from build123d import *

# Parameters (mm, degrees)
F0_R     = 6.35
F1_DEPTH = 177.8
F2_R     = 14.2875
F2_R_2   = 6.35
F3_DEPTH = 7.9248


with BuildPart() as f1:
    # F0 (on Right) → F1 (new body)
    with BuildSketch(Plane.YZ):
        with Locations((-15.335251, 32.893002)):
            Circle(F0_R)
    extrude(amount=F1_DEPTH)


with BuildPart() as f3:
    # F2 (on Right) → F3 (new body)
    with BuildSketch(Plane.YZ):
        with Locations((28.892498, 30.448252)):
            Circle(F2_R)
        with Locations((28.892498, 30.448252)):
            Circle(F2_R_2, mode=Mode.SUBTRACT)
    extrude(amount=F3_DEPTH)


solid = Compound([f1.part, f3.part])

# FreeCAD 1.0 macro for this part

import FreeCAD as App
import Part
import Sketcher
Q = App.Units.Quantity

doc = App.newDocument("Part")
params = doc.addObject("Spreadsheet::Sheet", "Params")
for row, (alias, value) in enumerate([
    ("sketch1_diameter", "0.5 in"),
    ("pad1_length", "7 in"),
    ("sketch2_diameter", "0.5 in"),
    ("sketch2_diameter2", "1.125 in"),
    ("pad2_length", "0.312 in"),
], start=1):
    params.set(f"A{row}", alias)
    params.set(f"B{row}", "=" + value)
    params.setAlias(f"B{row}", alias)

body = doc.addObject("PartDesign::Body", "Body")

sketch1 = body.newObject("Sketcher::SketchObject", "Sketch")
sketch1.AttachmentSupport = (doc.getObject("YZ_Plane"), [""])
sketch1.MapMode = "FlatFace"
sketch1.addGeometry(Part.Circle(App.Vector(-15.335251, 32.893002, 0), App.Vector(0, 0, 1), 6.35), False)
sketch1.addConstraint([
    Sketcher.Constraint("Diameter", 0, Q("0.5 in")),
    Sketcher.Constraint("DistanceY", -1, 1, 0, 3, Q("1.2950001 in")),
    Sketcher.Constraint("DistanceX", 0, 3, -1, 1, Q("15.335251 mm")),
])
sketch1.setExpression("Constraints[0]", "Params.sketch1_diameter")
pad1 = body.newObject("PartDesign::Pad", "Pad")
pad1.Profile = sketch1
pad1.setExpression("Length", "Params.pad1_length")
body2 = doc.addObject("PartDesign::Body", "Body001")

sketch2 = body2.newObject("Sketcher::SketchObject", "Sketch001")
sketch2.AttachmentSupport = (doc.getObject("YZ_Plane001"), [""])
sketch2.MapMode = "FlatFace"
sketch2.addGeometry([
    Part.Circle(App.Vector(28.892498, 30.448252, 0), App.Vector(0, 0, 1), 14.2875),
    Part.Circle(App.Vector(28.892498, 30.448252, 0), App.Vector(0, 0, 1), 6.35),
], False)
sketch2.addConstraint([
    Sketcher.Constraint("Coincident", 1, 3, 0, 3),
    Sketcher.Constraint("Diameter", 1, Q("0.5 in")),
    Sketcher.Constraint("Diameter", 0, Q("1.125 in")),
    Sketcher.Constraint("DistanceX", -1, 1, 0, 3, Q("1.1374999 in")),
    Sketcher.Constraint("DistanceY", -1, 1, 0, 3, Q("30.448252 mm")),
])
sketch2.setExpression("Constraints[1]", "Params.sketch2_diameter")
sketch2.setExpression("Constraints[2]", "Params.sketch2_diameter2")
pad2 = body2.newObject("PartDesign::Pad", "Pad001")
pad2.Profile = sketch2
pad2.setExpression("Length", "Params.pad2_length")

doc.recompute()
